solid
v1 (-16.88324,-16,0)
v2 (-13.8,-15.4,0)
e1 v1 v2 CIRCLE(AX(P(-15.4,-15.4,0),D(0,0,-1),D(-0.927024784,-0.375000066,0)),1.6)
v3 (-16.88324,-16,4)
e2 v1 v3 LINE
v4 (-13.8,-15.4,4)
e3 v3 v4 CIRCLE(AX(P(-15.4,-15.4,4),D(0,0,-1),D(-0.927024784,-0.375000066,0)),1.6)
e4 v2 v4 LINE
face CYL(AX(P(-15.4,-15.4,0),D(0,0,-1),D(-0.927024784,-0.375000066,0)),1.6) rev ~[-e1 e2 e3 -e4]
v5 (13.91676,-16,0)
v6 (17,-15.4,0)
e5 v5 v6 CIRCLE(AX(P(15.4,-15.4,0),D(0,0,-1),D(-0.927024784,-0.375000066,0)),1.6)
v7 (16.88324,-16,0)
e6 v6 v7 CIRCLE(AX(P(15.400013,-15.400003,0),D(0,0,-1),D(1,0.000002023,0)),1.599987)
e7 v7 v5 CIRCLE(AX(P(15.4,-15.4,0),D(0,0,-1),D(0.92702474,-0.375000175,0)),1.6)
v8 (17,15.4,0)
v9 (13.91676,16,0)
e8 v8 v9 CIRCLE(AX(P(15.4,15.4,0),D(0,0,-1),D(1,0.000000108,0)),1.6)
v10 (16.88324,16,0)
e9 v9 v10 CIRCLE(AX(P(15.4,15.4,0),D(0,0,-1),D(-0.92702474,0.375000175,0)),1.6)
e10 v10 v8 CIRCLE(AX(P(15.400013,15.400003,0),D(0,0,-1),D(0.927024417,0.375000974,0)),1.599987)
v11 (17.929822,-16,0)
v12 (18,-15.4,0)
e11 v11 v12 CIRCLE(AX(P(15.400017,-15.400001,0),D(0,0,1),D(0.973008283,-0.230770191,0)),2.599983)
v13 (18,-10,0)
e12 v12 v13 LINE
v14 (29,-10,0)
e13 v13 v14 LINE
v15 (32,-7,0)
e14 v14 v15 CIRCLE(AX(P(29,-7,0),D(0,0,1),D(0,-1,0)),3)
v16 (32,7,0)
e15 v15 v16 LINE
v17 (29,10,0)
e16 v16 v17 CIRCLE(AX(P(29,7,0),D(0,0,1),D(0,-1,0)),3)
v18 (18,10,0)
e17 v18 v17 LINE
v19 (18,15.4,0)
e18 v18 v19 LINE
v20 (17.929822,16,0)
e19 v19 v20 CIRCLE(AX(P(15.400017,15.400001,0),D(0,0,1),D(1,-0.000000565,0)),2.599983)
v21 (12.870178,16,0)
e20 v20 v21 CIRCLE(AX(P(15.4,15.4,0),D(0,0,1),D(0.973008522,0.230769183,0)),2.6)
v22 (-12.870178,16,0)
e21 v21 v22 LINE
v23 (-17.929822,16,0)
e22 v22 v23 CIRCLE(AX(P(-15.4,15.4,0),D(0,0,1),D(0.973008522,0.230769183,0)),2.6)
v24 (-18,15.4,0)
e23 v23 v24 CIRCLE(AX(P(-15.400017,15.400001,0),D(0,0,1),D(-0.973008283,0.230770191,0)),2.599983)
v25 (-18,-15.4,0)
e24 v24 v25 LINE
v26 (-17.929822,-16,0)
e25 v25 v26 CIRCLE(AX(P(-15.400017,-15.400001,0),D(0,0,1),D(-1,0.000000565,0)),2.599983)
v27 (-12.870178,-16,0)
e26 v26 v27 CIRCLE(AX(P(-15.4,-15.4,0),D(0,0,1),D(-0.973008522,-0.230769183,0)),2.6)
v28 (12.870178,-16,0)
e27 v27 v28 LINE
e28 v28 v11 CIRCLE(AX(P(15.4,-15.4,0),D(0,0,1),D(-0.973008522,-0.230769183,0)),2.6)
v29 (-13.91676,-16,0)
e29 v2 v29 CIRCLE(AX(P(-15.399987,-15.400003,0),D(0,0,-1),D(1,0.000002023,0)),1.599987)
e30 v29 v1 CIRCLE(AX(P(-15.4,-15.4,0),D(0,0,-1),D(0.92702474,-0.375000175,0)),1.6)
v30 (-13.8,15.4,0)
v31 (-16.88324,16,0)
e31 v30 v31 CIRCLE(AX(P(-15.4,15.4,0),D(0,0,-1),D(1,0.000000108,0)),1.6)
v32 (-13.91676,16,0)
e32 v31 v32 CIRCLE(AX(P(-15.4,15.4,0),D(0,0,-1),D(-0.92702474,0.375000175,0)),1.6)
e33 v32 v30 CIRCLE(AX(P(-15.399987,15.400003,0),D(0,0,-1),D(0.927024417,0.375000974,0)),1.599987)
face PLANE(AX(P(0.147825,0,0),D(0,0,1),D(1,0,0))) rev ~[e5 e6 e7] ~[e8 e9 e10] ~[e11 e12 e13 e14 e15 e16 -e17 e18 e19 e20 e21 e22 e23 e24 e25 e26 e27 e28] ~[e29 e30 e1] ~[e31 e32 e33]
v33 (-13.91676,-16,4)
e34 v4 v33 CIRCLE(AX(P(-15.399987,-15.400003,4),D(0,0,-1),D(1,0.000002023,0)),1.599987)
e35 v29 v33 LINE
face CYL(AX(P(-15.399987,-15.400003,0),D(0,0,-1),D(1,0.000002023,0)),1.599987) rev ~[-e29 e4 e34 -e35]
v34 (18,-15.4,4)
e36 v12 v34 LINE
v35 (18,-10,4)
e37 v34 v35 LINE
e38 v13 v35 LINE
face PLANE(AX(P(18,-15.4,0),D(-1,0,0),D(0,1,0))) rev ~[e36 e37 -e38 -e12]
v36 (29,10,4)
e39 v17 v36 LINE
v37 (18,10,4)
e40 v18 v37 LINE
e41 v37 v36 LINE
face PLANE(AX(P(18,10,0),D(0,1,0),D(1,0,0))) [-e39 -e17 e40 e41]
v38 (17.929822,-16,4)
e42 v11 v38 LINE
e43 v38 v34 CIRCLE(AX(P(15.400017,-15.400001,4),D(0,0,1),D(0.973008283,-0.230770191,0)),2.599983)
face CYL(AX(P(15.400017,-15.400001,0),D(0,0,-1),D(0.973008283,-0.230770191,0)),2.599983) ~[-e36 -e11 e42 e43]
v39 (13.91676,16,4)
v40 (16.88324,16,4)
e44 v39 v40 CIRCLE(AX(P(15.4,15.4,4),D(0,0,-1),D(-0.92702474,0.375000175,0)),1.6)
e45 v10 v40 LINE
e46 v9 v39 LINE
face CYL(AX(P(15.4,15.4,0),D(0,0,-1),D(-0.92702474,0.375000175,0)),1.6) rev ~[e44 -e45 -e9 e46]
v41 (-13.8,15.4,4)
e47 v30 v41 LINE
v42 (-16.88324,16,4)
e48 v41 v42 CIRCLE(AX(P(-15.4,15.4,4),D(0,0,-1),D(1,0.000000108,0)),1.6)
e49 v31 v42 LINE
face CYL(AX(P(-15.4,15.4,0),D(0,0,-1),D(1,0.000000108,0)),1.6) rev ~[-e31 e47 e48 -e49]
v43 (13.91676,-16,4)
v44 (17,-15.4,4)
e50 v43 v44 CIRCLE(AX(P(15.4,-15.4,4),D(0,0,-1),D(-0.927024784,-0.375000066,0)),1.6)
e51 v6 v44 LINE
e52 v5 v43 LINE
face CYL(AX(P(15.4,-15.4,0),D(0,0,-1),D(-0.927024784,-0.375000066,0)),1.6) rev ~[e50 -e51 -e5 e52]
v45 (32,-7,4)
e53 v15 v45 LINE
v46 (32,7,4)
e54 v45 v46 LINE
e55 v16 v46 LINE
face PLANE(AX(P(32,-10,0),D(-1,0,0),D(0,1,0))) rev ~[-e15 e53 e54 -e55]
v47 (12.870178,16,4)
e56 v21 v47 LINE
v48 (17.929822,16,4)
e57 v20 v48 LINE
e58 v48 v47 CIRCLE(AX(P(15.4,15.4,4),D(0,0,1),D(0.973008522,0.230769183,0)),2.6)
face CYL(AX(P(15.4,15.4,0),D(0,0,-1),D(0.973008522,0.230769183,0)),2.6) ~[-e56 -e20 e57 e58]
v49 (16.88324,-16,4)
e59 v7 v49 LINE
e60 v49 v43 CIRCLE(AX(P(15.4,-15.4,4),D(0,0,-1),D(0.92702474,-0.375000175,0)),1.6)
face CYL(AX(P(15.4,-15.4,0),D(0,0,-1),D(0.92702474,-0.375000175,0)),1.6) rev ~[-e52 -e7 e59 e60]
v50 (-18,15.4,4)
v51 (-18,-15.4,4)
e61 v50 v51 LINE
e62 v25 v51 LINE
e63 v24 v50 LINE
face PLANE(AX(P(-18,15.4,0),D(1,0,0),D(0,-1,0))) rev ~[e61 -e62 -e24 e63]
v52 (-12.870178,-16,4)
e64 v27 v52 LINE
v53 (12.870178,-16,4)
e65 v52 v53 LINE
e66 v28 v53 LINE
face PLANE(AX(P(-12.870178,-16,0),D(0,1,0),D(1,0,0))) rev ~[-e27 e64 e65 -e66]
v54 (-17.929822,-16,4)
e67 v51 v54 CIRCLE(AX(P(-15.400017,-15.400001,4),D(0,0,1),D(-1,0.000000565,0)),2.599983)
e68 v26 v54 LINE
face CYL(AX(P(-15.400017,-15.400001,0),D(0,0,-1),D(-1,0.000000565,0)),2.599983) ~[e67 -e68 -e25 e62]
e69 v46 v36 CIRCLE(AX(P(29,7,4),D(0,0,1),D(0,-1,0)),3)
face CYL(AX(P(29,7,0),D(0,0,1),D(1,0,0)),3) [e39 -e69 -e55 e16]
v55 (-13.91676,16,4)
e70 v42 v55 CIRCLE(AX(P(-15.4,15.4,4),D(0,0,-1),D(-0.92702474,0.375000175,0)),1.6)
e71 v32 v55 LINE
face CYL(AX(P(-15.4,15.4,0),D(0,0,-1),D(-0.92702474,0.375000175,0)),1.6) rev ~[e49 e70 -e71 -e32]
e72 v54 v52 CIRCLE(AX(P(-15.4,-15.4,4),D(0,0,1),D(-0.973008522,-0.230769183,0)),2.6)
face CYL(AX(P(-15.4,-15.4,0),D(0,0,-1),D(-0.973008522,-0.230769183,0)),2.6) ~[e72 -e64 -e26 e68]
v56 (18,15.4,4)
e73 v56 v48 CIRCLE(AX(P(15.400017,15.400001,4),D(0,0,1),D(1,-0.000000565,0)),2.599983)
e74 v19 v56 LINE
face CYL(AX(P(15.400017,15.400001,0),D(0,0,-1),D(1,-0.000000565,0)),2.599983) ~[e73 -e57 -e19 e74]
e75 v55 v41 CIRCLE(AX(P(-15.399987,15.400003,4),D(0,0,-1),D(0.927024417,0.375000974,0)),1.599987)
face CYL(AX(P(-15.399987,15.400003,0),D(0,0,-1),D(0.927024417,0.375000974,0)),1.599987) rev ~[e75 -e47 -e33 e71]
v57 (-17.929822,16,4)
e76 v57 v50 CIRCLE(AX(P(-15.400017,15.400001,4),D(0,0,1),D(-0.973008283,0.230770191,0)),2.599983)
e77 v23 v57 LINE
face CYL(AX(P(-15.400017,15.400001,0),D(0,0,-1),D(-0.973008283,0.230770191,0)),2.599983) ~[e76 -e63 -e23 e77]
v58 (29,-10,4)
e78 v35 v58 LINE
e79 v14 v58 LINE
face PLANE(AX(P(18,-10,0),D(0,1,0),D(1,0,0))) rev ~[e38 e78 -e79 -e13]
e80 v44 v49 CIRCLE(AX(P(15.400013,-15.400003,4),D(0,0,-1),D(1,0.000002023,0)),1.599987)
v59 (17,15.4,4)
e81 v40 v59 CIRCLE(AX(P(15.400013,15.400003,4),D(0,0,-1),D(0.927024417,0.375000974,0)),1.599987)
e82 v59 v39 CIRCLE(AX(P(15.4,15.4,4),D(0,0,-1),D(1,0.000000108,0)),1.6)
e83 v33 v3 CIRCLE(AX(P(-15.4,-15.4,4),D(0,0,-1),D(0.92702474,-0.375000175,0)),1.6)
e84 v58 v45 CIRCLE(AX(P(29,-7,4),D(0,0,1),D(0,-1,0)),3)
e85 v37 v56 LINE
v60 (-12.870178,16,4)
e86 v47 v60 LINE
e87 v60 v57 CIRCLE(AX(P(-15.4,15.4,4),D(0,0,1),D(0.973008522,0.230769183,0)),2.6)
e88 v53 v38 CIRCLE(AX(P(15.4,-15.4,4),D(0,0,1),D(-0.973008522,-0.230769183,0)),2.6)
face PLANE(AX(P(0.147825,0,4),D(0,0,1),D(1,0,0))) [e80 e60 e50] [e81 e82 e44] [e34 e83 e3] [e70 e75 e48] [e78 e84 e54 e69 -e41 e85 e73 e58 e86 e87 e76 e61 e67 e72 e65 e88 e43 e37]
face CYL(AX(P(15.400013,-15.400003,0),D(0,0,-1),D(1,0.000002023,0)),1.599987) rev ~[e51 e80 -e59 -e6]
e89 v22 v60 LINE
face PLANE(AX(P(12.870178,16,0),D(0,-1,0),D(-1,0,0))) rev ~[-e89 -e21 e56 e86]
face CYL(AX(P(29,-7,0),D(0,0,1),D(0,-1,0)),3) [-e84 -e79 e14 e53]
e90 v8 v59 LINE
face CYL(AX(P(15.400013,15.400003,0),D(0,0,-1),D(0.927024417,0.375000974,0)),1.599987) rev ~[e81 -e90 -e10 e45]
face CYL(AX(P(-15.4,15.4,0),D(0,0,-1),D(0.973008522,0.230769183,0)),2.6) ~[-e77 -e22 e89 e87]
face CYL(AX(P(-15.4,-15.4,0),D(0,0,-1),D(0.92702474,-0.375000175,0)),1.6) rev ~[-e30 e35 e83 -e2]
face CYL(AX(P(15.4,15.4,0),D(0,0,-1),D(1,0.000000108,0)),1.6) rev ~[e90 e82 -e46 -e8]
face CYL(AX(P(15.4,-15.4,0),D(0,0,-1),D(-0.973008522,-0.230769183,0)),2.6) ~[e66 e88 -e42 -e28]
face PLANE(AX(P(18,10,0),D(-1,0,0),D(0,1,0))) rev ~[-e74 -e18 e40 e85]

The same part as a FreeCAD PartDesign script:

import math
import FreeCAD as App
import Part
import Sketcher

V = App.Vector
Q = App.Units.Quantity


def edges_at(feature, points):
    """Names of the edges that pass closest to the given points."""
    edges = feature.Shape.Edges
    near = lambda p: min(range(len(edges)), key=lambda i: edges[i].distToShape(Part.Vertex(*p))[0])
    return sorted({f"Edge{near(p) + 1}" for p in points})

doc = App.newDocument("Part")
body = doc.addObject("PartDesign::Body", "Body")

sketch1 = body.newObject("Sketcher::SketchObject", "Sketch")
sketch1.AttachmentSupport = (doc.getObject("XY_Plane"), [""])
sketch1.MapMode = "FlatFace"
sketch1.addGeometry(Part.LineSegment(V(18, -15.4, 0), V(18, -10, 0)), False)
sketch1.addGeometry(Part.LineSegment(V(18, -10, 0), V(32, -10, 0)), False)
sketch1.addGeometry(Part.LineSegment(V(32, -10, 0), V(32, 10, 0)), False)
sketch1.addGeometry(Part.LineSegment(V(32, 10, 0), V(18, 10, 0)), False)
sketch1.addGeometry(Part.LineSegment(V(18, 10, 0), V(18, 15.4, 0)), False)
sketch1.addGeometry(Part.ArcOfCircle(Part.Circle(V(15.4, 15.4, 0), V(0, 0, 1), 2.6), math.radians(0), math.radians(13.34)), False)
sketch1.addGeometry(Part.ArcOfCircle(Part.Circle(V(15.4, 15.4, 0), V(0, 0, 1), 2.6), math.radians(13), math.radians(167)), False)
sketch1.addGeometry(Part.LineSegment(V(12.9, 16, 0), V(-12.9, 16, 0)), False)
sketch1.addGeometry(Part.ArcOfCircle(Part.Circle(V(-15.4, 15.4, 0), V(0, 0, 1), 2.6), math.radians(13), math.radians(167)), False)
sketch1.addGeometry(Part.ArcOfCircle(Part.Circle(V(-15.4, 15.4, 0), V(0, 0, 1), 2.6), math.radians(166.66), math.radians(180)), False)
sketch1.addGeometry(Part.LineSegment(V(-18, 15.4, 0), V(-18, -15.4, 0)), False)
sketch1.addGeometry(Part.ArcOfCircle(Part.Circle(V(-15.4, -15.4, 0), V(0, 0, 1), 2.6), math.radians(180), math.radians(193.34)), False)
sketch1.addGeometry(Part.ArcOfCircle(Part.Circle(V(-15.4, -15.4, 0), V(0, 0, 1), 2.6), math.radians(-167), math.radians(-13)), False)
sketch1.addGeometry(Part.LineSegment(V(-12.9, -16, 0), V(12.9, -16, 0)), False)
sketch1.addGeometry(Part.ArcOfCircle(Part.Circle(V(15.4, -15.4, 0), V(0, 0, 1), 2.6), math.radians(-167), math.radians(-13)), False)
sketch1.addGeometry(Part.ArcOfCircle(Part.Circle(V(15.4, -15.4, 0), V(0, 0, 1), 2.6), math.radians(-13.34), math.radians(0)), False)
sketch1.addGeometry(Part.ArcOfCircle(Part.Circle(V(-15.4, -15.4, 0), V(0, 0, 1), 1.6), math.radians(0), math.radians(202)), False)
sketch1.addGeometry(Part.ArcOfCircle(Part.Circle(V(-15.4, -15.4, 0), V(0, 0, 1), 1.6), math.radians(-22), math.radians(0)), False)
sketch1.addGeometry(Part.ArcOfCircle(Part.Circle(V(-15.4, -15.4, 0), V(0, 0, 1), 1.6), math.radians(-158), math.radians(-22)), False)
sketch1.addGeometry(Part.ArcOfCircle(Part.Circle(V(15.4, 15.4, 0), V(0, 0, 1), 1.6), math.radians(0), math.radians(22)), False)
sketch1.addGeometry(Part.ArcOfCircle(Part.Circle(V(15.4, 15.4, 0), V(0, 0, 1), 1.6), math.radians(158), math.radians(360)), False)
sketch1.addGeometry(Part.ArcOfCircle(Part.Circle(V(15.4, 15.4, 0), V(0, 0, 1), 1.6), math.radians(22), math.radians(158)), False)
sketch1.addGeometry(Part.ArcOfCircle(Part.Circle(V(-15.4, 15.4, 0), V(0, 0, 1), 1.6), math.radians(0), math.radians(22)), False)
sketch1.addGeometry(Part.ArcOfCircle(Part.Circle(V(-15.4, 15.4, 0), V(0, 0, 1), 1.6), math.radians(158), math.radians(360)), False)
sketch1.addGeometry(Part.ArcOfCircle(Part.Circle(V(-15.4, 15.4, 0), V(0, 0, 1), 1.6), math.radians(22), math.radians(158)), False)
sketch1.addGeometry(Part.ArcOfCircle(Part.Circle(V(15.4, -15.4, 0), V(0, 0, 1), 1.6), math.radians(0), math.radians(202)), False)
sketch1.addGeometry(Part.ArcOfCircle(Part.Circle(V(15.4, -15.4, 0), V(0, 0, 1), 1.6), math.radians(-22), math.radians(0)), False)
sketch1.addGeometry(Part.ArcOfCircle(Part.Circle(V(15.4, -15.4, 0), V(0, 0, 1), 1.6), math.radians(-158), math.radians(-22)), False)
sketch1.addConstraint(Sketcher.Constraint("Coincident", 0, 2, 1, 1))
sketch1.addConstraint(Sketcher.Constraint("Coincident", 1, 2, 2, 1))
sketch1.addConstraint(Sketcher.Constraint("Coincident", 2, 2, 3, 1))
sketch1.addConstraint(Sketcher.Constraint("Coincident", 3, 2, 4, 1))
sketch1.addConstraint(Sketcher.Constraint("Tangent", 4, 2, 5, 1))
sketch1.addConstraint(Sketcher.Constraint("Tangent", 5, 2, 6, 1))
sketch1.addConstraint(Sketcher.Constraint("Coincident", 6, 2, 7, 1))
sketch1.addConstraint(Sketcher.Constraint("Coincident", 7, 2, 8, 1))
sketch1.addConstraint(Sketcher.Constraint("Tangent", 8, 2, 9, 1))
sketch1.addConstraint(Sketcher.Constraint("Tangent", 9, 2, 10, 1))
sketch1.addConstraint(Sketcher.Constraint("Tangent", 10, 2, 11, 1))
sketch1.addConstraint(Sketcher.Constraint("Tangent", 11, 2, 12, 1))
sketch1.addConstraint(Sketcher.Constraint("Coincident", 12, 2, 13, 1))
sketch1.addConstraint(Sketcher.Constraint("Coincident", 13, 2, 14, 1))
sketch1.addConstraint(Sketcher.Constraint("Tangent", 14, 2, 15, 1))
sketch1.addConstraint(Sketcher.Constraint("Tangent", 15, 2, 0, 1))
sketch1.addConstraint(Sketcher.Constraint("Coincident", 16, 1, 17, 2))
sketch1.addConstraint(Sketcher.Constraint("Tangent", 17, 1, 18, 2))
sketch1.addConstraint(Sketcher.Constraint("Tangent", 18, 1, 16, 2))
sketch1.addConstraint(Sketcher.Constraint("Coincident", 19, 1, 20, 2))
sketch1.addConstraint(Sketcher.Constraint("Tangent", 20, 1, 21, 2))
sketch1.addConstraint(Sketcher.Constraint("Tangent", 21, 1, 19, 2))
sketch1.addConstraint(Sketcher.Constraint("Coincident", 22, 1, 23, 2))
sketch1.addConstraint(Sketcher.Constraint("Tangent", 23, 1, 24, 2))
sketch1.addConstraint(Sketcher.Constraint("Tangent", 24, 1, 22, 2))
sketch1.addConstraint(Sketcher.Constraint("Coincident", 25, 1, 26, 2))
sketch1.addConstraint(Sketcher.Constraint("Tangent", 26, 1, 27, 2))
sketch1.addConstraint(Sketcher.Constraint("Tangent", 27, 1, 25, 2))
sketch1.addConstraint(Sketcher.Constraint("Vertical", 0))
sketch1.addConstraint(Sketcher.Constraint("Horizontal", 1))
sketch1.addConstraint(Sketcher.Constraint("Vertical", 2))
sketch1.addConstraint(Sketcher.Constraint("Horizontal", 3))
sketch1.addConstraint(Sketcher.Constraint("Vertical", 4))
sketch1.addConstraint(Sketcher.Constraint("Horizontal", 7))
sketch1.addConstraint(Sketcher.Constraint("Vertical", 10))
sketch1.addConstraint(Sketcher.Constraint("Horizontal", 13))
sketch1.addConstraint(Sketcher.Constraint("Coincident", 16, 3, 12, 3))
sketch1.addConstraint(Sketcher.Constraint("Coincident", 19, 3, 5, 3))
sketch1.addConstraint(Sketcher.Constraint("Coincident", 20, 3, 6, 3))
sketch1.addConstraint(Sketcher.Constraint("Coincident", 23, 3, 8, 3))
sketch1.addConstraint(Sketcher.Constraint("Coincident", 25, 3, 14, 3))
sketch1.addConstraint(Sketcher.Constraint("Coincident", 26, 3, 15, 3))
sketch1.addConstraint(Sketcher.Constraint("Equal", 6, 8))
sketch1.addConstraint(Sketcher.Constraint("Equal", 5, 9))
sketch1.addConstraint(Sketcher.Constraint("Equal", 9, 11))
sketch1.addConstraint(Sketcher.Constraint("Equal", 8, 12))
sketch1.addConstraint(Sketcher.Constraint("Equal", 12, 14))
sketch1.addConstraint(Sketcher.Constraint("Equal", 16, 18))
sketch1.addConstraint(Sketcher.Constraint("Equal", 17, 19))
sketch1.addConstraint(Sketcher.Constraint("Equal", 19, 22))
sketch1.addConstraint(Sketcher.Constraint("Equal", 21, 23))
sketch1.addConstraint(Sketcher.Constraint("Equal", 24, 25))
sketch1.addConstraint(Sketcher.Constraint("Symmetric", 5, 3, 11, 3, -1, 1))
sketch1.addConstraint(Sketcher.Constraint("Symmetric", 8, 3, 14, 3, -1, 1))
sketch1.addConstraint(Sketcher.Constraint("Symmetric", 5, 2, 8, 2, -2))
sketch1.addConstraint(Sketcher.Constraint("Horizontal", 5, 2, 6, 2))
sketch1.addConstraint(Sketcher.Constraint("Horizontal", 11, 2, 12, 2))
sketch1.addConstraint(Sketcher.Constraint("Horizontal", 13, 2, 14, 2))
sketch1.addConstraint(Sketcher.Constraint("Horizontal", 15, 2, 16, 1))
sketch1.addConstraint(Sketcher.Constraint("Horizontal", 14, 2, 17, 1))
sketch1.addConstraint(Sketcher.Constraint("Horizontal", 17, 1, 18, 1))
sketch1.addConstraint(Sketcher.Constraint("Horizontal", 9, 2, 19, 1))
sketch1.addConstraint(Sketcher.Constraint("Horizontal", 8, 2, 20, 1))
sketch1.addConstraint(Sketcher.Constraint("Horizontal", 20, 1, 21, 1))
sketch1.addConstraint(Sketcher.Constraint("Horizontal", 19, 1, 22, 1))
sketch1.addConstraint(Sketcher.Constraint("Horizontal", 21, 1, 23, 1))
sketch1.addConstraint(Sketcher.Constraint("Horizontal", 23, 1, 24, 1))
sketch1.addConstraint(Sketcher.Constraint("Horizontal", 16, 1, 25, 1))
sketch1.addConstraint(Sketcher.Constraint("Horizontal", 18, 1, 26, 1))
sketch1.addConstraint(Sketcher.Constraint("Horizontal", 26, 1, 27, 1))
sketch1.addConstraint(Sketcher.Constraint("Vertical", 8, 2, 11, 2))
sketch1.addConstraint(Sketcher.Constraint("Equal", 0, 4))
sketch1.addConstraint(Sketcher.Constraint("Radius", 6, Q("2.6 mm")))
sketch1.addConstraint(Sketcher.Constraint("Radius", 16, Q("1.6 mm")))
sketch1.addConstraint(Sketcher.Constraint("DistanceX", 1, 1, 1, 2, Q("14 mm")))
sketch1.addConstraint(Sketcher.Constraint("DistanceY", 2, 1, 2, 2, Q("20 mm")))
sketch1.addConstraint(Sketcher.Constraint("DistanceY", 0, 1, 0, 2, Q("5.4 mm")))
sketch1.addConstraint(Sketcher.Constraint("DistanceX", -1, 1, 0, 2, Q("18 mm")))
sketch1.addConstraint(Sketcher.Constraint("DistanceY", -1, 1, 5, 2, Q("16 mm")))
pad1 = body.newObject("PartDesign::Pad", "Pad")
pad1.Profile = sketch1
pad1.Length = 4
doc.recompute()

fillet = body.newObject("PartDesign::Fillet", "Fillet")
fillet.Base = (pad1, edges_at(pad1, [(32, 10, 2), (32, -10, 2)]))
fillet.Radius = 3

doc.recompute()
